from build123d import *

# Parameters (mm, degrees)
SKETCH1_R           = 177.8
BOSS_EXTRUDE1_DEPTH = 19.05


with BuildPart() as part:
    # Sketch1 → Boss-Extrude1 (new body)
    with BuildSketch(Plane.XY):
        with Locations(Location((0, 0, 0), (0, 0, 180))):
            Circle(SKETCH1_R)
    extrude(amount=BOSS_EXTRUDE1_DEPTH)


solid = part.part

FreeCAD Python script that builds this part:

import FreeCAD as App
import Part
import Sketcher

V = App.Vector
Q = App.Units.Quantity

doc = App.newDocument("Part")
body = doc.addObject("PartDesign::Body", "Body")

sketch1 = body.newObject("Sketcher::SketchObject", "Sketch")
sketch1.AttachmentSupport = (doc.getObject("XY_Plane"), [""])
sketch1.MapMode = "FlatFace"
sketch1.addGeometry(Part.Circle(V(0, 0, 0), V(0, 0, 1), 177.8), False)
sketch1.addConstraint([
    Sketcher.Constraint("Coincident", 0, 3, -1, 1),
    Sketcher.Constraint("Diameter", 0, Q("14 in")),
])
pad1 = body.newObject("PartDesign::Pad", "Pad")
pad1.Profile = sketch1
pad1.Length = Q("0.75 in")

doc.recompute()
